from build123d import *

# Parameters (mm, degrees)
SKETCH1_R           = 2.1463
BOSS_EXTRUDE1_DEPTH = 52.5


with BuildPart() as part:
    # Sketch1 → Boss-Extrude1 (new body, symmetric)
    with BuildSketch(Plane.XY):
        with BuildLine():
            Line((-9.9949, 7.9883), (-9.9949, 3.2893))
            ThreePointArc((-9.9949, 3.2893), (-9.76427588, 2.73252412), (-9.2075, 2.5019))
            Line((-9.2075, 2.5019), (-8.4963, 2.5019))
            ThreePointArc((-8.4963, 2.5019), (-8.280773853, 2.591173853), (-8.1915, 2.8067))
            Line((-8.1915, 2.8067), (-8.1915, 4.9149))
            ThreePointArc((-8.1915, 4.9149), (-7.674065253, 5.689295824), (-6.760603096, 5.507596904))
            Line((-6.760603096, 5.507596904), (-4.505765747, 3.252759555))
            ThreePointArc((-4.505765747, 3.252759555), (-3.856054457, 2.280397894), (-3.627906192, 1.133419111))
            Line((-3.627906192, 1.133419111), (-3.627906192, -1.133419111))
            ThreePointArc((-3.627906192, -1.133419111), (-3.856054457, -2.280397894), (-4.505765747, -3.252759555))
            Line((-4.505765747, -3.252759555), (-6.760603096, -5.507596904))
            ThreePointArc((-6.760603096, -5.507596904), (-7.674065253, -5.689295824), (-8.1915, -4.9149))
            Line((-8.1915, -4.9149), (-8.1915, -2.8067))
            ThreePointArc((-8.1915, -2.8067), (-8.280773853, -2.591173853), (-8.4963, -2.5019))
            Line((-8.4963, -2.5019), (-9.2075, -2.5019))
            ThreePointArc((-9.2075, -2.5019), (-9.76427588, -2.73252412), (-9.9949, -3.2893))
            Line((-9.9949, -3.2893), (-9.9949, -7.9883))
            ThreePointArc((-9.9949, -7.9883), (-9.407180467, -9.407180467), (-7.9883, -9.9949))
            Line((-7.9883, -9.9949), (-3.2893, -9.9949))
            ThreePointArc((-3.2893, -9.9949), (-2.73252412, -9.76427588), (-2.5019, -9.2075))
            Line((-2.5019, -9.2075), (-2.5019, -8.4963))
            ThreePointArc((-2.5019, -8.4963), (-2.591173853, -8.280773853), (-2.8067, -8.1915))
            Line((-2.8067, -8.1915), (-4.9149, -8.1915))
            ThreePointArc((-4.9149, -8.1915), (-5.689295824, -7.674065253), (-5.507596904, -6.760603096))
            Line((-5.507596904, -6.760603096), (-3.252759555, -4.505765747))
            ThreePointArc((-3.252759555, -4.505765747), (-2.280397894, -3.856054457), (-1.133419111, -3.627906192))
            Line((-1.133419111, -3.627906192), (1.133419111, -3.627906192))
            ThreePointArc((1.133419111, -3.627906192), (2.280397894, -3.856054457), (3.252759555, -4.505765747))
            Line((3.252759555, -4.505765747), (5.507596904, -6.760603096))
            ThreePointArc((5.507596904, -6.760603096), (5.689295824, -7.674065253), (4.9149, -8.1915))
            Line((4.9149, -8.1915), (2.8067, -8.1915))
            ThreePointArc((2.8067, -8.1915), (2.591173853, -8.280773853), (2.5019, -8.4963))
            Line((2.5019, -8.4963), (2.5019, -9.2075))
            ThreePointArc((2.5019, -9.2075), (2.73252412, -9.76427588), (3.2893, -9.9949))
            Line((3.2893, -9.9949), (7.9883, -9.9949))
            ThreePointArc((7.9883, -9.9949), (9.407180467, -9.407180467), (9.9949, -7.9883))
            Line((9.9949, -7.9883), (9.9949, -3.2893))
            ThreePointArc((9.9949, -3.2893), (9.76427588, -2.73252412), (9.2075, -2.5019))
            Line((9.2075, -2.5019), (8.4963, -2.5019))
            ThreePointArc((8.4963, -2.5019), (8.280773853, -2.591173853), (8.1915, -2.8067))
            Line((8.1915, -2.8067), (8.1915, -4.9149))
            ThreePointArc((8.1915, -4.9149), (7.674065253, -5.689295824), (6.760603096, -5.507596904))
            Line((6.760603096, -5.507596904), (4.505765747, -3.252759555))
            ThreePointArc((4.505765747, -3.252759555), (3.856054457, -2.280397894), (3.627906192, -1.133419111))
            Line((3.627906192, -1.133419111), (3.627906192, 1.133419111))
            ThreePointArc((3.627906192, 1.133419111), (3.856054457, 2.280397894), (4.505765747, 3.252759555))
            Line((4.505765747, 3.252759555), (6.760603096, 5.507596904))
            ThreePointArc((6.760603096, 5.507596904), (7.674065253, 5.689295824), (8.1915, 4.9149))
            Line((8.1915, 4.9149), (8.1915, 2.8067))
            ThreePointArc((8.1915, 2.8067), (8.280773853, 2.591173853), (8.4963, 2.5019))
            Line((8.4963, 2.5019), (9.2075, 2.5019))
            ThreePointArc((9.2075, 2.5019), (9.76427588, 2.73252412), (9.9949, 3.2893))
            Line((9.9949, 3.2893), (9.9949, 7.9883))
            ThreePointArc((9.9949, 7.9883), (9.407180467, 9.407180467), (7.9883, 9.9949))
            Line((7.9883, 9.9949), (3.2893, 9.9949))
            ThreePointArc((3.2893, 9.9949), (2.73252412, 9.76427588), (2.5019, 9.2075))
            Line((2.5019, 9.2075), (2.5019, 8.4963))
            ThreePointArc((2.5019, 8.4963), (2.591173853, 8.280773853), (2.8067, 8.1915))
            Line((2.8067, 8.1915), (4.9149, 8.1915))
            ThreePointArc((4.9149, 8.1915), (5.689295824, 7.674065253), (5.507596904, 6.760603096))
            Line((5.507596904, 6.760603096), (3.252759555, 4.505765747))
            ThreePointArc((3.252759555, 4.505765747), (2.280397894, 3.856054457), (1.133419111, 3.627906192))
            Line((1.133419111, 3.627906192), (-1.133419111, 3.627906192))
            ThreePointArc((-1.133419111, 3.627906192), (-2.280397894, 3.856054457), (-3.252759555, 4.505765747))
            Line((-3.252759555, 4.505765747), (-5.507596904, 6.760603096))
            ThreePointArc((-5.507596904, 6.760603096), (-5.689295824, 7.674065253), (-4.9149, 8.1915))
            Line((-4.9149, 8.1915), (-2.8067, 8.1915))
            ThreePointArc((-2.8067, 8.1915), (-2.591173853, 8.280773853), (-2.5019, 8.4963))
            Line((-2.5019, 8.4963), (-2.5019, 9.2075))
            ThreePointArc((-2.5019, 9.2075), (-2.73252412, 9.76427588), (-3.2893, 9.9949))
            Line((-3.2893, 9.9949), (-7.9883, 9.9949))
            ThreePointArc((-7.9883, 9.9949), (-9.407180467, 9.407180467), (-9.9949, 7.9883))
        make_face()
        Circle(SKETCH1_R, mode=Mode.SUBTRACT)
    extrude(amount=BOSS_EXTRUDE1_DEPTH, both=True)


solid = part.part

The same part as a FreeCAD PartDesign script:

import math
import FreeCAD as App
import Part
import Sketcher

V = App.Vector
Q = App.Units.Quantity

doc = App.newDocument("Part")
body = doc.addObject("PartDesign::Body", "Body")

# Sketch on XY plane
sketch1 = body.newObject("Sketcher::SketchObject", "Sketch")
sketch1.AttachmentSupport = (doc.getObject("XY_Plane"), [""])
sketch1.MapMode = "FlatFace"
sketch1.addGeometry(Part.LineSegment(V(-9.99, 7.99, 0), V(-9.99, 3.29, 0)), False)
sketch1.addGeometry(Part.ArcOfCircle(Part.Circle(V(-9.21, 3.29, 0), V(0, 0, 1), 0.79), math.radians(180), math.radians(270)), False)
sketch1.addGeometry(Part.LineSegment(V(-9.21, 2.5, 0), V(-8.5, 2.5, 0)), False)
sketch1.addGeometry(Part.ArcOfCircle(Part.Circle(V(-8.5, 2.81, 0), V(0, 0, 1), 0.3), math.radians(-90), math.radians(0)), False)
sketch1.addGeometry(Part.LineSegment(V(-8.19, 2.81, 0), V(-8.19, 4.91, 0)), False)
sketch1.addGeometry(Part.ArcOfCircle(Part.Circle(V(-7.35, 4.91, 0), V(0, 0, 1), 0.84), math.radians(45), math.radians(180)), False)
sketch1.addGeometry(Part.LineSegment(V(-6.76, 5.51, 0), V(-4.51, 3.25, 0)), False)
sketch1.addGeometry(Part.ArcOfCircle(Part.Circle(V(-6.63, 1.13, 0), V(0, 0, 1), 3), math.radians(0), math.radians(45)), False)
sketch1.addGeometry(Part.LineSegment(V(-3.63, 1.13, 0), V(-3.63, -1.13, 0)), False)
sketch1.addGeometry(Part.ArcOfCircle(Part.Circle(V(-6.63, -1.13, 0), V(0, 0, 1), 3), math.radians(-45), math.radians(0)), False)
sketch1.addGeometry(Part.LineSegment(V(-4.51, -3.25, 0), V(-6.76, -5.51, 0)), False)
sketch1.addGeometry(Part.ArcOfCircle(Part.Circle(V(-7.35, -4.91, 0), V(0, 0, 1), 0.84), math.radians(180), math.radians(315)), False)
sketch1.addGeometry(Part.LineSegment(V(-8.19, -4.91, 0), V(-8.19, -2.81, 0)), False)
sketch1.addGeometry(Part.ArcOfCircle(Part.Circle(V(-8.5, -2.81, 0), V(0, 0, 1), 0.3), math.radians(0), math.radians(90)), False)
sketch1.addGeometry(Part.LineSegment(V(-8.5, -2.5, 0), V(-9.21, -2.5, 0)), False)
sketch1.addGeometry(Part.ArcOfCircle(Part.Circle(V(-9.21, -3.29, 0), V(0, 0, 1), 0.79), math.radians(90), math.radians(180)), False)
sketch1.addGeometry(Part.LineSegment(V(-9.99, -3.29, 0), V(-9.99, -7.99, 0)), False)
sketch1.addGeometry(Part.ArcOfCircle(Part.Circle(V(-7.99, -7.99, 0), V(0, 0, 1), 2.01), math.radians(180), math.radians(270)), False)
sketch1.addGeometry(Part.LineSegment(V(-7.99, -9.99, 0), V(-3.29, -9.99, 0)), False)
sketch1.addGeometry(Part.ArcOfCircle(Part.Circle(V(-3.29, -9.21, 0), V(0, 0, 1), 0.79), math.radians(-90), math.radians(0)), False)
sketch1.addGeometry(Part.LineSegment(V(-2.5, -9.21, 0), V(-2.5, -8.5, 0)), False)
sketch1.addGeometry(Part.ArcOfCircle(Part.Circle(V(-2.81, -8.5, 0), V(0, 0, 1), 0.3), math.radians(0), math.radians(90)), False)
sketch1.addGeometry(Part.LineSegment(V(-2.81, -8.19, 0), V(-4.91, -8.19, 0)), False)
sketch1.addGeometry(Part.ArcOfCircle(Part.Circle(V(-4.91, -7.35, 0), V(0, 0, 1), 0.84), math.radians(135), math.radians(270)), False)
sketch1.addGeometry(Part.LineSegment(V(-5.51, -6.76, 0), V(-3.25, -4.51, 0)), False)
sketch1.addGeometry(Part.ArcOfCircle(Part.Circle(V(-1.13, -6.63, 0), V(0, 0, 1), 3), math.radians(90), math.radians(135)), False)
sketch1.addGeometry(Part.LineSegment(V(-1.13, -3.63, 0), V(1.13, -3.63, 0)), False)
sketch1.addGeometry(Part.ArcOfCircle(Part.Circle(V(1.13, -6.63, 0), V(0, 0, 1), 3), math.radians(45), math.radians(90)), False)
sketch1.addGeometry(Part.LineSegment(V(3.25, -4.51, 0), V(5.51, -6.76, 0)), False)
sketch1.addGeometry(Part.ArcOfCircle(Part.Circle(V(4.91, -7.35, 0), V(0, 0, 1), 0.84), math.radians(-90), math.radians(45)), False)
sketch1.addGeometry(Part.LineSegment(V(4.91, -8.19, 0), V(2.81, -8.19, 0)), False)
sketch1.addGeometry(Part.ArcOfCircle(Part.Circle(V(2.81, -8.5, 0), V(0, 0, 1), 0.3), math.radians(90), math.radians(180)), False)
sketch1.addGeometry(Part.LineSegment(V(2.5, -8.5, 0), V(2.5, -9.21, 0)), False)
sketch1.addGeometry(Part.ArcOfCircle(Part.Circle(V(3.29, -9.21, 0), V(0, 0, 1), 0.79), math.radians(180), math.radians(270)), False)
sketch1.addGeometry(Part.LineSegment(V(3.29, -9.99, 0), V(7.99, -9.99, 0)), False)
sketch1.addGeometry(Part.ArcOfCircle(Part.Circle(V(7.99, -7.99, 0), V(0, 0, 1), 2.01), math.radians(-90), math.radians(0)), False)
sketch1.addGeometry(Part.LineSegment(V(9.99, -7.99, 0), V(9.99, -3.29, 0)), False)
sketch1.addGeometry(Part.ArcOfCircle(Part.Circle(V(9.21, -3.29, 0), V(0, 0, 1), 0.79), math.radians(0), math.radians(90)), False)
sketch1.addGeometry(Part.LineSegment(V(9.21, -2.5, 0), V(8.5, -2.5, 0)), False)
sketch1.addGeometry(Part.ArcOfCircle(Part.Circle(V(8.5, -2.81, 0), V(0, 0, 1), 0.3), math.radians(90), math.radians(180)), False)
sketch1.addGeometry(Part.LineSegment(V(8.19, -2.81, 0), V(8.19, -4.91, 0)), False)
sketch1.addGeometry(Part.ArcOfCircle(Part.Circle(V(7.35, -4.91, 0), V(0, 0, 1), 0.84), math.radians(-135), math.radians(0)), False)
sketch1.addGeometry(Part.LineSegment(V(6.76, -5.51, 0), V(4.51, -3.25, 0)), False)
sketch1.addGeometry(Part.ArcOfCircle(Part.Circle(V(6.63, -1.13, 0), V(0, 0, 1), 3), math.radians(180), math.radians(225)), False)
sketch1.addGeometry(Part.LineSegment(V(3.63, -1.13, 0), V(3.63, 1.13, 0)), False)
sketch1.addGeometry(Part.ArcOfCircle(Part.Circle(V(6.63, 1.13, 0), V(0, 0, 1), 3), math.radians(135), math.radians(180)), False)
sketch1.addGeometry(Part.LineSegment(V(4.51, 3.25, 0), V(6.76, 5.51, 0)), False)
sketch1.addGeometry(Part.ArcOfCircle(Part.Circle(V(7.35, 4.91, 0), V(0, 0, 1), 0.84), math.radians(0), math.radians(135)), False)
sketch1.addGeometry(Part.LineSegment(V(8.19, 4.91, 0), V(8.19, 2.81, 0)), False)
sketch1.addGeometry(Part.ArcOfCircle(Part.Circle(V(8.5, 2.81, 0), V(0, 0, 1), 0.3), math.radians(180), math.radians(270)), False)
sketch1.addGeometry(Part.LineSegment(V(8.5, 2.5, 0), V(9.21, 2.5, 0)), False)
sketch1.addGeometry(Part.ArcOfCircle(Part.Circle(V(9.21, 3.29, 0), V(0, 0, 1), 0.79), math.radians(-90), math.radians(0)), False)
sketch1.addGeometry(Part.LineSegment(V(9.99, 3.29, 0), V(9.99, 7.99, 0)), False)
sketch1.addGeometry(Part.ArcOfCircle(Part.Circle(V(7.99, 7.99, 0), V(0, 0, 1), 2.01), math.radians(0), math.radians(90)), False)
sketch1.addGeometry(Part.LineSegment(V(7.99, 9.99, 0), V(3.29, 9.99, 0)), False)
sketch1.addGeometry(Part.ArcOfCircle(Part.Circle(V(3.29, 9.21, 0), V(0, 0, 1), 0.79), math.radians(90), math.radians(180)), False)
sketch1.addGeometry(Part.LineSegment(V(2.5, 9.21, 0), V(2.5, 8.5, 0)), False)
sketch1.addGeometry(Part.ArcOfCircle(Part.Circle(V(2.81, 8.5, 0), V(0, 0, 1), 0.3), math.radians(180), math.radians(270)), False)
sketch1.addGeometry(Part.LineSegment(V(2.81, 8.19, 0), V(4.91, 8.19, 0)), False)
sketch1.addGeometry(Part.ArcOfCircle(Part.Circle(V(4.91, 7.35, 0), V(0, 0, 1), 0.84), math.radians(-45), math.radians(90)), False)
sketch1.addGeometry(Part.LineSegment(V(5.51, 6.76, 0), V(3.25, 4.51, 0)), False)
sketch1.addGeometry(Part.ArcOfCircle(Part.Circle(V(1.13, 6.63, 0), V(0, 0, 1), 3), math.radians(-90), math.radians(-45)), False)
sketch1.addGeometry(Part.LineSegment(V(1.13, 3.63, 0), V(-1.13, 3.63, 0)), False)
sketch1.addGeometry(Part.ArcOfCircle(Part.Circle(V(-1.13, 6.63, 0), V(0, 0, 1), 3), math.radians(-135), math.radians(-90)), False)
sketch1.addGeometry(Part.LineSegment(V(-3.25, 4.51, 0), V(-5.51, 6.76, 0)), False)
sketch1.addGeometry(Part.ArcOfCircle(Part.Circle(V(-4.91, 7.35, 0), V(0, 0, 1), 0.84), math.radians(90), math.radians(225)), False)
sketch1.addGeometry(Part.LineSegment(V(-4.91, 8.19, 0), V(-2.81, 8.19, 0)), False)
sketch1.addGeometry(Part.ArcOfCircle(Part.Circle(V(-2.81, 8.5, 0), V(0, 0, 1), 0.3), math.radians(-90), math.radians(0)), False)
sketch1.addGeometry(Part.LineSegment(V(-2.5, 8.5, 0), V(-2.5, 9.21, 0)), False)
sketch1.addGeometry(Part.ArcOfCircle(Part.Circle(V(-3.29, 9.21, 0), V(0, 0, 1), 0.79), math.radians(0), math.radians(90)), False)
sketch1.addGeometry(Part.LineSegment(V(-3.29, 9.99, 0), V(-7.99, 9.99, 0)), False)
sketch1.addGeometry(Part.ArcOfCircle(Part.Circle(V(-7.99, 7.99, 0), V(0, 0, 1), 2.01), math.radians(90), math.radians(180)), False)
sketch1.addGeometry(Part.Circle(V(0, 0, 0), V(0, 0, 1), 2.15), False)
sketch1.addConstraint(Sketcher.Constraint("Tangent", 0, 2, 1, 1))
sketch1.addConstraint(Sketcher.Constraint("Tangent", 1, 2, 2, 1))
sketch1.addConstraint(Sketcher.Constraint("Tangent", 2, 2, 3, 1))
sketch1.addConstraint(Sketcher.Constraint("Tangent", 3, 2, 4, 1))
sketch1.addConstraint(Sketcher.Constraint("Tangent", 4, 2, 5, 2))
sketch1.addConstraint(Sketcher.Constraint("Tangent", 5, 1, 6, 1))
sketch1.addConstraint(Sketcher.Constraint("Tangent", 6, 2, 7, 2))
sketch1.addConstraint(Sketcher.Constraint("Tangent", 7, 1, 8, 1))
sketch1.addConstraint(Sketcher.Constraint("Tangent", 8, 2, 9, 2))
sketch1.addConstraint(Sketcher.Constraint("Tangent", 9, 1, 10, 1))
sketch1.addConstraint(Sketcher.Constraint("Tangent", 10, 2, 11, 2))
sketch1.addConstraint(Sketcher.Constraint("Tangent", 11, 1, 12, 1))
sketch1.addConstraint(Sketcher.Constraint("Tangent", 12, 2, 13, 1))
sketch1.addConstraint(Sketcher.Constraint("Tangent", 13, 2, 14, 1))
sketch1.addConstraint(Sketcher.Constraint("Tangent", 14, 2, 15, 1))
sketch1.addConstraint(Sketcher.Constraint("Tangent", 15, 2, 16, 1))
sketch1.addConstraint(Sketcher.Constraint("Tangent", 16, 2, 17, 1))
sketch1.addConstraint(Sketcher.Constraint("Tangent", 17, 2, 18, 1))
sketch1.addConstraint(Sketcher.Constraint("Tangent", 18, 2, 19, 1))
sketch1.addConstraint(Sketcher.Constraint("Tangent", 19, 2, 20, 1))
sketch1.addConstraint(Sketcher.Constraint("Tangent", 20, 2, 21, 1))
sketch1.addConstraint(Sketcher.Constraint("Tangent", 21, 2, 22, 1))
sketch1.addConstraint(Sketcher.Constraint("Tangent", 22, 2, 23, 2))
sketch1.addConstraint(Sketcher.Constraint("Tangent", 23, 1, 24, 1))
sketch1.addConstraint(Sketcher.Constraint("Tangent", 24, 2, 25, 2))
sketch1.addConstraint(Sketcher.Constraint("Tangent", 25, 1, 26, 1))
sketch1.addConstraint(Sketcher.Constraint("Tangent", 26, 2, 27, 2))
sketch1.addConstraint(Sketcher.Constraint("Tangent", 27, 1, 28, 1))
sketch1.addConstraint(Sketcher.Constraint("Tangent", 28, 2, 29, 2))
sketch1.addConstraint(Sketcher.Constraint("Tangent", 29, 1, 30, 1))
sketch1.addConstraint(Sketcher.Constraint("Tangent", 30, 2, 31, 1))
sketch1.addConstraint(Sketcher.Constraint("Tangent", 31, 2, 32, 1))
sketch1.addConstraint(Sketcher.Constraint("Tangent", 32, 2, 33, 1))
sketch1.addConstraint(Sketcher.Constraint("Tangent", 33, 2, 34, 1))
sketch1.addConstraint(Sketcher.Constraint("Tangent", 34, 2, 35, 1))
sketch1.addConstraint(Sketcher.Constraint("Tangent", 35, 2, 36, 1))
sketch1.addConstraint(Sketcher.Constraint("Tangent", 36, 2, 37, 1))
sketch1.addConstraint(Sketcher.Constraint("Tangent", 37, 2, 38, 1))
sketch1.addConstraint(Sketcher.Constraint("Tangent", 38, 2, 39, 1))
sketch1.addConstraint(Sketcher.Constraint("Tangent", 39, 2, 40, 1))
sketch1.addConstraint(Sketcher.Constraint("Tangent", 40, 2, 41, 2))
sketch1.addConstraint(Sketcher.Constraint("Tangent", 41, 1, 42, 1))
sketch1.addConstraint(Sketcher.Constraint("Tangent", 42, 2, 43, 2))
sketch1.addConstraint(Sketcher.Constraint("Tangent", 43, 1, 44, 1))
sketch1.addConstraint(Sketcher.Constraint("Tangent", 44, 2, 45, 2))
sketch1.addConstraint(Sketcher.Constraint("Tangent", 45, 1, 46, 1))
sketch1.addConstraint(Sketcher.Constraint("Tangent", 46, 2, 47, 2))
sketch1.addConstraint(Sketcher.Constraint("Tangent", 47, 1, 48, 1))
sketch1.addConstraint(Sketcher.Constraint("Tangent", 48, 2, 49, 1))
sketch1.addConstraint(Sketcher.Constraint("Tangent", 49, 2, 50, 1))
sketch1.addConstraint(Sketcher.Constraint("Tangent", 50, 2, 51, 1))
sketch1.addConstraint(Sketcher.Constraint("Tangent", 51, 2, 52, 1))
sketch1.addConstraint(Sketcher.Constraint("Tangent", 52, 2, 53, 1))
sketch1.addConstraint(Sketcher.Constraint("Tangent", 53, 2, 54, 1))
sketch1.addConstraint(Sketcher.Constraint("Tangent", 54, 2, 55, 1))
sketch1.addConstraint(Sketcher.Constraint("Tangent", 55, 2, 56, 1))
sketch1.addConstraint(Sketcher.Constraint("Tangent", 56, 2, 57, 1))
sketch1.addConstraint(Sketcher.Constraint("Tangent", 57, 2, 58, 1))
sketch1.addConstraint(Sketcher.Constraint("Tangent", 58, 2, 59, 2))
sketch1.addConstraint(Sketcher.Constraint("Tangent", 59, 1, 60, 1))
sketch1.addConstraint(Sketcher.Constraint("Tangent", 60, 2, 61, 2))
sketch1.addConstraint(Sketcher.Constraint("Tangent", 61, 1, 62, 1))
sketch1.addConstraint(Sketcher.Constraint("Tangent", 62, 2, 63, 2))
sketch1.addConstraint(Sketcher.Constraint("Tangent", 63, 1, 64, 1))
sketch1.addConstraint(Sketcher.Constraint("Tangent", 64, 2, 65, 2))
sketch1.addConstraint(Sketcher.Constraint("Tangent", 65, 1, 66, 1))
sketch1.addConstraint(Sketcher.Constraint("Tangent", 66, 2, 67, 1))
sketch1.addConstraint(Sketcher.Constraint("Tangent", 67, 2, 68, 1))
sketch1.addConstraint(Sketcher.Constraint("Tangent", 68, 2, 69, 1))
sketch1.addConstraint(Sketcher.Constraint("Tangent", 69, 2, 70, 1))
sketch1.addConstraint(Sketcher.Constraint("Tangent", 70, 2, 71, 1))
sketch1.addConstraint(Sketcher.Constraint("Tangent", 71, 2, 0, 1))
sketch1.addConstraint(Sketcher.Constraint("Vertical", 0))
sketch1.addConstraint(Sketcher.Constraint("Horizontal", 2))
sketch1.addConstraint(Sketcher.Constraint("Vertical", 4))
sketch1.addConstraint(Sketcher.Constraint("Vertical", 8))
sketch1.addConstraint(Sketcher.Constraint("Vertical", 12))
sketch1.addConstraint(Sketcher.Constraint("Horizontal", 14))
sketch1.addConstraint(Sketcher.Constraint("Vertical", 16))
sketch1.addConstraint(Sketcher.Constraint("Horizontal", 18))
sketch1.addConstraint(Sketcher.Constraint("Vertical", 20))
sketch1.addConstraint(Sketcher.Constraint("Horizontal", 22))
sketch1.addConstraint(Sketcher.Constraint("Horizontal", 26))
sketch1.addConstraint(Sketcher.Constraint("Horizontal", 30))
sketch1.addConstraint(Sketcher.Constraint("Vertical", 32))
sketch1.addConstraint(Sketcher.Constraint("Horizontal", 34))
sketch1.addConstraint(Sketcher.Constraint("Vertical", 36))
sketch1.addConstraint(Sketcher.Constraint("Horizontal", 38))
sketch1.addConstraint(Sketcher.Constraint("Vertical", 40))
sketch1.addConstraint(Sketcher.Constraint("Vertical", 44))
sketch1.addConstraint(Sketcher.Constraint("Vertical", 48))
sketch1.addConstraint(Sketcher.Constraint("Horizontal", 50))
sketch1.addConstraint(Sketcher.Constraint("Vertical", 52))
sketch1.addConstraint(Sketcher.Constraint("Horizontal", 54))
sketch1.addConstraint(Sketcher.Constraint("Vertical", 56))
sketch1.addConstraint(Sketcher.Constraint("Horizontal", 58))
sketch1.addConstraint(Sketcher.Constraint("Horizontal", 62))
sketch1.addConstraint(Sketcher.Constraint("Horizontal", 66))
sketch1.addConstraint(Sketcher.Constraint("Vertical", 68))
sketch1.addConstraint(Sketcher.Constraint("Horizontal", 70))
sketch1.addConstraint(Sketcher.Constraint("Coincident", 72, 3, -1, 1))
sketch1.addConstraint(Sketcher.Constraint("Equal", 7, 9))
sketch1.addConstraint(Sketcher.Constraint("Equal", 5, 11))
sketch1.addConstraint(Sketcher.Constraint("Equal", 3, 13))
sketch1.addConstraint(Sketcher.Constraint("Equal", 1, 15))
sketch1.addConstraint(Sketcher.Constraint("Equal", 15, 19))
sketch1.addConstraint(Sketcher.Constraint("Equal", 13, 21))
sketch1.addConstraint(Sketcher.Constraint("Equal", 11, 23))
sketch1.addConstraint(Sketcher.Constraint("Equal", 9, 25))
sketch1.addConstraint(Sketcher.Constraint("Equal", 25, 27))
sketch1.addConstraint(Sketcher.Constraint("Equal", 23, 29))
sketch1.addConstraint(Sketcher.Constraint("Equal", 21, 31))
sketch1.addConstraint(Sketcher.Constraint("Equal", 19, 33))
sketch1.addConstraint(Sketcher.Constraint("Equal", 17, 35))
sketch1.addConstraint(Sketcher.Constraint("Equal", 33, 37))
sketch1.addConstraint(Sketcher.Constraint("Equal", 31, 39))
sketch1.addConstraint(Sketcher.Constraint("Equal", 29, 41))
sketch1.addConstraint(Sketcher.Constraint("Equal", 27, 43))
sketch1.addConstraint(Sketcher.Constraint("Equal", 43, 45))
sketch1.addConstraint(Sketcher.Constraint("Equal", 41, 47))
sketch1.addConstraint(Sketcher.Constraint("Equal", 39, 49))
sketch1.addConstraint(Sketcher.Constraint("Equal", 37, 51))
sketch1.addConstraint(Sketcher.Constraint("Equal", 35, 53))
sketch1.addConstraint(Sketcher.Constraint("Equal", 51, 55))
sketch1.addConstraint(Sketcher.Constraint("Equal", 49, 57))
sketch1.addConstraint(Sketcher.Constraint("Equal", 47, 59))
sketch1.addConstraint(Sketcher.Constraint("Equal", 45, 61))
sketch1.addConstraint(Sketcher.Constraint("Equal", 61, 63))
sketch1.addConstraint(Sketcher.Constraint("Equal", 59, 65))
sketch1.addConstraint(Sketcher.Constraint("Equal", 57, 67))
sketch1.addConstraint(Sketcher.Constraint("Equal", 55, 69))
sketch1.addConstraint(Sketcher.Constraint("Equal", 53, 71))
sketch1.addConstraint(Sketcher.Constraint("Symmetric", 1, 3, 37, 3, -1, 1))
sketch1.addConstraint(Sketcher.Constraint("Symmetric", 5, 3, 41, 3, -1, 1))
sketch1.addConstraint(Sketcher.Constraint("Symmetric", 7, 3, 43, 3, -1, 1))
sketch1.addConstraint(Sketcher.Constraint("Symmetric", 11, 3, 47, 3, -1, 1))
sketch1.addConstraint(Sketcher.Constraint("Symmetric", 15, 3, 51, 3, -1, 1))
sketch1.addConstraint(Sketcher.Constraint("Symmetric", 19, 3, 55, 3, -1, 1))
sketch1.addConstraint(Sketcher.Constraint("Symmetric", 23, 3, 59, 3, -1, 1))
sketch1.addConstraint(Sketcher.Constraint("Symmetric", 25, 3, 61, 3, -1, 1))
sketch1.addConstraint(Sketcher.Constraint("Symmetric", 29, 3, 65, 3, -1, 1))
sketch1.addConstraint(Sketcher.Constraint("Symmetric", 33, 3, 69, 3, -1, 1))
sketch1.addConstraint(Sketcher.Constraint("Symmetric", 23, 3, 29, 3, -2))
sketch1.addConstraint(Sketcher.Constraint("Symmetric", 19, 3, 33, 3, -2))
sketch1.addConstraint(Sketcher.Constraint("Symmetric", 15, 3, 37, 3, -2))
sketch1.addConstraint(Sketcher.Constraint("Symmetric", 11, 3, 41, 3, -2))
sketch1.addConstraint(Sketcher.Constraint("Perpendicular", 6, 10))
sketch1.addConstraint(Sketcher.Constraint("Parallel", 10, 24))
sketch1.addConstraint(Sketcher.Constraint("Perpendicular", 24, 28))
sketch1.addConstraint(Sketcher.Constraint("Perpendicular", 42, 46))
sketch1.addConstraint(Sketcher.Constraint("Perpendicular", 60, 64))
sketch1.addConstraint(Sketcher.Constraint("Horizontal", 9, 3, 43, 3))
sketch1.addConstraint(Sketcher.Constraint("Equal", 70, 0))
sketch1.addConstraint(Sketcher.Constraint("Equal", 66, 4))
sketch1.addConstraint(Sketcher.Constraint("Equal", 62, 8))
sketch1.addConstraint(Sketcher.Constraint("Equal", 50, 20))
sketch1.addConstraint(Sketcher.Constraint("Equal", 10, 24))
sketch1.addConstraint(Sketcher.Constraint("Diameter", 72, Q("0.169 in")))
sketch1.addConstraint(Sketcher.Constraint("Radius", 1, Q("0.031 in")))
sketch1.addConstraint(Sketcher.Constraint("Radius", 3, Q("0.012 in")))
sketch1.addConstraint(Sketcher.Constraint("Radius", 5, Q("0.033 in")))
sketch1.addConstraint(Sketcher.Constraint("Radius", 7, Q("0.118 in")))
sketch1.addConstraint(Sketcher.Constraint("Radius", 17, Q("0.079 in")))
sketch1.addConstraint(Sketcher.Constraint("DistanceX", 2, 1, 2, 2, Q("0.028 in")))
sketch1.addConstraint(Sketcher.Constraint("DistanceX", 18, 1, 18, 2, Q("0.185 in")))
sketch1.addConstraint(Sketcher.Constraint("DistanceX", 22, 2, 22, 1, Q("0.083 in")))
sketch1.addConstraint(Sketcher.Constraint("DistanceX", 1, 3, -1, 1, Q("0.3625 in")))
sketch1.addConstraint(Sketcher.Constraint("DistanceX", 26, 1, 26, 2, Q("2.266838 mm")))
pad1 = body.newObject("PartDesign::Pad", "Pad")
pad1.Profile = sketch1
pad1.Length = 105
pad1.Midplane = True

doc.recompute()
